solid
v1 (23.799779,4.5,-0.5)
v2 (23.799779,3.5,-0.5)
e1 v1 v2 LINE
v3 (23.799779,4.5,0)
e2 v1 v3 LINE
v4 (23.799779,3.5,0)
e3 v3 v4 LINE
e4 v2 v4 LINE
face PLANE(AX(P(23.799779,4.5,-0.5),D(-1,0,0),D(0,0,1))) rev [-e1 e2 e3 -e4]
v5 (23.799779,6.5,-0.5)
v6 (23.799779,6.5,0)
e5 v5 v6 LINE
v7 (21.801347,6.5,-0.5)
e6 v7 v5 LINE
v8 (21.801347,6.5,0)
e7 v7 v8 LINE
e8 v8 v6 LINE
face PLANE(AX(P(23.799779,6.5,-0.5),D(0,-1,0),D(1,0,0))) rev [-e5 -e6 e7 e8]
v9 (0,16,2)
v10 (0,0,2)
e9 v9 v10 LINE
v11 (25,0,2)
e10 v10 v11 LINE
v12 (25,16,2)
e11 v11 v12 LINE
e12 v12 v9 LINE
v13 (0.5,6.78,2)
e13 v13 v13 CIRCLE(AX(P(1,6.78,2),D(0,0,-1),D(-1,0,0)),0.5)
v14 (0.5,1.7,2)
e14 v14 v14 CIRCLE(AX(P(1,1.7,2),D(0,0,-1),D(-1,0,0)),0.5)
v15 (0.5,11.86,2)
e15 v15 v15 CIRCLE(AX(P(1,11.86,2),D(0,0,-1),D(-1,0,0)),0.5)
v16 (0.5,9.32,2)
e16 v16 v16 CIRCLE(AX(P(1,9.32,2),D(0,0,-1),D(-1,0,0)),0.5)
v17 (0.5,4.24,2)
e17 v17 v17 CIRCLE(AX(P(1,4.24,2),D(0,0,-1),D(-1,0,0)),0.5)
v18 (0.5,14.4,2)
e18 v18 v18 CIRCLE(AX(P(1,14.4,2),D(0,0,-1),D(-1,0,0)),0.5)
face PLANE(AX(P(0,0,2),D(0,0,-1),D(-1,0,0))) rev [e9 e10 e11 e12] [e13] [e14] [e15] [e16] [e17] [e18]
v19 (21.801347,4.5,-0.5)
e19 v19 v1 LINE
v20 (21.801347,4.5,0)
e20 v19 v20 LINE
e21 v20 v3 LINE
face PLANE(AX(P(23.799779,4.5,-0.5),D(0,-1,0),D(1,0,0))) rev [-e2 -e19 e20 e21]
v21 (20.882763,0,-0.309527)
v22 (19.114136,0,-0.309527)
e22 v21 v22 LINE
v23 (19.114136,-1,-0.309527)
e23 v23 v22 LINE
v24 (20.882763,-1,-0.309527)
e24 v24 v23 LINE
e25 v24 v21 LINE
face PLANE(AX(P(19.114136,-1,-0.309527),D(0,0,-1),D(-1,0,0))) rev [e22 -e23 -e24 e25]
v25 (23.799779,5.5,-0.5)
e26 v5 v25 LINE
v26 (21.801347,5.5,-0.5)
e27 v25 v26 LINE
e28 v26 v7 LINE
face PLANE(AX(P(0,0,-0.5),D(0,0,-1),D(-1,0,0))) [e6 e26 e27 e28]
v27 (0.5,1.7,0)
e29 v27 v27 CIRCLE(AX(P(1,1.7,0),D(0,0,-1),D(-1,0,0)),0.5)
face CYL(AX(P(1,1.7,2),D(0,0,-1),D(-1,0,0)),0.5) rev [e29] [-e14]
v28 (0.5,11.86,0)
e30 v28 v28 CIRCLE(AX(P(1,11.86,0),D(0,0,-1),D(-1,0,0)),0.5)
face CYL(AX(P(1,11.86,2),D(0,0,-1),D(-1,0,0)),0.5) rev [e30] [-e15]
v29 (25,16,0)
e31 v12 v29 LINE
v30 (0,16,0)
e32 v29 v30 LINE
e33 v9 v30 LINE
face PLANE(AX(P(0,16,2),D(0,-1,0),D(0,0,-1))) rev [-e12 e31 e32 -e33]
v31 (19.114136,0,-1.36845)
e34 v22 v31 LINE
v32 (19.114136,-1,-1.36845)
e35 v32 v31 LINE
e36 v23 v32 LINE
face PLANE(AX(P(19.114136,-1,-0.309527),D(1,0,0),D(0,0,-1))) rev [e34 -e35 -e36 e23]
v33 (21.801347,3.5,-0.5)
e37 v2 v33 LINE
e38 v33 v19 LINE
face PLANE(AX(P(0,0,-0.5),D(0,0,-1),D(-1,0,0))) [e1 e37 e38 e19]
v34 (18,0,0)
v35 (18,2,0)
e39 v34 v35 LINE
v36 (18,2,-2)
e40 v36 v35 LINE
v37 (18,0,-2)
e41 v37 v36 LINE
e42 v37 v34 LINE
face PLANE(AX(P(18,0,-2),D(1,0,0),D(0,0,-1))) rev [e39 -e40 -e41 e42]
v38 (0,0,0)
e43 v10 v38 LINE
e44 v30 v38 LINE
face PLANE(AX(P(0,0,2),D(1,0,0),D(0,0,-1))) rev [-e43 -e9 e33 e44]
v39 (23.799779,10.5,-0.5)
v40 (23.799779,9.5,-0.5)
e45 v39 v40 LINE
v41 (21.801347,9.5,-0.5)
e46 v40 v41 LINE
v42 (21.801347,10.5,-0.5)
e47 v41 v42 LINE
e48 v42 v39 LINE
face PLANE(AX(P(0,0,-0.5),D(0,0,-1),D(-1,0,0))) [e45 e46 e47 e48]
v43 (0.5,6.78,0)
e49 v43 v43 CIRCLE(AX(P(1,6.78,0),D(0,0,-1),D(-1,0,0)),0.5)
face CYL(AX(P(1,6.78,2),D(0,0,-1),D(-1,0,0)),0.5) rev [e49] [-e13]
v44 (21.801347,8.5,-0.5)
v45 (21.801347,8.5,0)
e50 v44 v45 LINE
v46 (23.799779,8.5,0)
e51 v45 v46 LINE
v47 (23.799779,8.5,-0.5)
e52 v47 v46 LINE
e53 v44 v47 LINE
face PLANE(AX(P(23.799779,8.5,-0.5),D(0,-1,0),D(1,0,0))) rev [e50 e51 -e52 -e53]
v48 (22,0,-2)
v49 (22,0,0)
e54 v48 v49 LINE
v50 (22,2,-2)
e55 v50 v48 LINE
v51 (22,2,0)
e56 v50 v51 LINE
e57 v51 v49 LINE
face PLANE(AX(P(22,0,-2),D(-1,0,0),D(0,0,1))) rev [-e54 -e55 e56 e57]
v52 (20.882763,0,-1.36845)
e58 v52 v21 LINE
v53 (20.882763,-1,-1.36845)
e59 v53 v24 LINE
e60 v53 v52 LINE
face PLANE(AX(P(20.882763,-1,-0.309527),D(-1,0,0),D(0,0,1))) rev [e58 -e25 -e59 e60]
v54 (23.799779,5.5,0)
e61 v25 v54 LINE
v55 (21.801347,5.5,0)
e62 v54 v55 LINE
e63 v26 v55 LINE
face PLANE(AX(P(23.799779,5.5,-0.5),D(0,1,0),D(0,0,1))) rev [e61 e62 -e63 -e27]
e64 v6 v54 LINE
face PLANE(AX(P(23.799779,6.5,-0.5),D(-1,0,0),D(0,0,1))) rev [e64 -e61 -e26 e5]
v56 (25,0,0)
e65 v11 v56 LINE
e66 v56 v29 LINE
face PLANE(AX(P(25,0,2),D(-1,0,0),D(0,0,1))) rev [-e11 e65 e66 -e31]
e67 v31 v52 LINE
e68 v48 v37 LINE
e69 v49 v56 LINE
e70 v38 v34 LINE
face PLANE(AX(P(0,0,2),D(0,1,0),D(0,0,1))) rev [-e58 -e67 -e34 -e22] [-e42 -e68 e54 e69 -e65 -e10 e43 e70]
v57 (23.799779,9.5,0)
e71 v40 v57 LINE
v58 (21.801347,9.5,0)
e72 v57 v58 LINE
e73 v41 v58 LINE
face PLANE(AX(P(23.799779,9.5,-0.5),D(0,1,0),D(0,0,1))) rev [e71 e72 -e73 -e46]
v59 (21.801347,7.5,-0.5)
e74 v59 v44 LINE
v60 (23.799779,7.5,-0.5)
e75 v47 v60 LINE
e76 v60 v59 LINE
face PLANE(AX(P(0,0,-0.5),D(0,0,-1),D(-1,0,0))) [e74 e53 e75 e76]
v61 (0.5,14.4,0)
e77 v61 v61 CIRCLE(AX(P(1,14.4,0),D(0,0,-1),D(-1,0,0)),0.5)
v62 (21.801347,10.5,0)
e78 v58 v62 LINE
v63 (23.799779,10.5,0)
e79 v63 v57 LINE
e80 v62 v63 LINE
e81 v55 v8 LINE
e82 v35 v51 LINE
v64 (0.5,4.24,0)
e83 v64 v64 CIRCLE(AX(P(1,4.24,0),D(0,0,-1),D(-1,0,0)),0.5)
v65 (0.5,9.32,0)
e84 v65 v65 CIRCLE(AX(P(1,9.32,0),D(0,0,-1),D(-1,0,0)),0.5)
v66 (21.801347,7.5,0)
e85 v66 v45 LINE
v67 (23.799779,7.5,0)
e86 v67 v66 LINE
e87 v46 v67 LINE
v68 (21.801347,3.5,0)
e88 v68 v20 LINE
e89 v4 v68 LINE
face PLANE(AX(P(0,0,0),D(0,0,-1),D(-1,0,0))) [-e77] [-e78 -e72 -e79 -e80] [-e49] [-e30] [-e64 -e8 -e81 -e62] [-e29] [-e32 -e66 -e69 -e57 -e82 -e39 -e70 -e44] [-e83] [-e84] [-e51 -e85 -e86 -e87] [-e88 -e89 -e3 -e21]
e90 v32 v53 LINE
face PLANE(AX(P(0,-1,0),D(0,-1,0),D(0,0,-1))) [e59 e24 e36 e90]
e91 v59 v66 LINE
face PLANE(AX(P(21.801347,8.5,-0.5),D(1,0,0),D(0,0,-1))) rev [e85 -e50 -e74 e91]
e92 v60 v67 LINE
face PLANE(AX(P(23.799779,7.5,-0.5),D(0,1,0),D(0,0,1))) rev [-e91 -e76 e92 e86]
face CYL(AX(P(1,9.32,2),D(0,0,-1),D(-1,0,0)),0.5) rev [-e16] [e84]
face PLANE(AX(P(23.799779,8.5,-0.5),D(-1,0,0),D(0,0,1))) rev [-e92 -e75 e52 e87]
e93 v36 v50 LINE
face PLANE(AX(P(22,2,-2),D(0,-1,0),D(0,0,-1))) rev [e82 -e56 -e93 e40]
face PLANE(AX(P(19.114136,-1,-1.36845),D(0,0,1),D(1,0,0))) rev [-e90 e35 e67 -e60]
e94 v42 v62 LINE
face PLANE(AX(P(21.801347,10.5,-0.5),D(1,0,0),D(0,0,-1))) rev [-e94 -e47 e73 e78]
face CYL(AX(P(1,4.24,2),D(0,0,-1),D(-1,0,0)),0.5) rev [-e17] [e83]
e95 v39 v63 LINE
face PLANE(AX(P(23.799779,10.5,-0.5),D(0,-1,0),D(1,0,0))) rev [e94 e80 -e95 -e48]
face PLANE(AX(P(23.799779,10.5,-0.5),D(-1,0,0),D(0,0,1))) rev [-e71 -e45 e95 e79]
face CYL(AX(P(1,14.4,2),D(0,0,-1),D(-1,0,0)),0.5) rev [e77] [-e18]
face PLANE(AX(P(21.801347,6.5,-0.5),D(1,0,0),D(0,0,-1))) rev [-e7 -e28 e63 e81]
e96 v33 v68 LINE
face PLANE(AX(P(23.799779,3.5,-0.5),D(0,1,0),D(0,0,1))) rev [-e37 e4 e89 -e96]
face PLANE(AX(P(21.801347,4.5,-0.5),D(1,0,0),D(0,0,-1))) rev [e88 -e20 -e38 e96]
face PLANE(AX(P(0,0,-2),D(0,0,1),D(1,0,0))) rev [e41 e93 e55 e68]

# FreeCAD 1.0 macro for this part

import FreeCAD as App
import Part
import Sketcher
from FreeCAD import Vector

doc = App.newDocument("Part")
body = doc.addObject("PartDesign::Body", "Body")

sketch1 = body.newObject("Sketcher::SketchObject", "Sketch")
sketch1.AttachmentSupport = (doc.getObject("XY_Plane"), [""])
sketch1.MapMode = "FlatFace"
sketch1.addGeometry(Part.LineSegment(Vector(0, 16, 0), Vector(0, 0, 0)), False)
sketch1.addGeometry(Part.LineSegment(Vector(0, 0, 0), Vector(25, 0, 0)), False)
sketch1.addGeometry(Part.LineSegment(Vector(25, 0, 0), Vector(25, 16, 0)), False)
sketch1.addGeometry(Part.LineSegment(Vector(25, 16, 0), Vector(0, 16, 0)), False)
sketch1.addConstraint(Sketcher.Constraint("Coincident", 0, 2, 1, 1))
sketch1.addConstraint(Sketcher.Constraint("Coincident", 1, 2, 2, 1))
sketch1.addConstraint(Sketcher.Constraint("Coincident", 2, 2, 3, 1))
sketch1.addConstraint(Sketcher.Constraint("Coincident", 3, 2, 0, 1))
sketch1.addConstraint(Sketcher.Constraint("Vertical", 0))
sketch1.addConstraint(Sketcher.Constraint("Horizontal", 1))
sketch1.addConstraint(Sketcher.Constraint("Vertical", 2))
sketch1.addConstraint(Sketcher.Constraint("Horizontal", 3))
sketch1.addConstraint(Sketcher.Constraint("Coincident", 0, 2, -1, 1))
sketch1.addConstraint(Sketcher.Constraint("DistanceX", 1, 1, 1, 2, 25.0))
sketch1.addConstraint(Sketcher.Constraint("DistanceY", 0, 2, 0, 1, 16.0))
pad1 = body.newObject("PartDesign::Pad", "Pad")
pad1.Profile = sketch1
pad1.Length = 2

sketch2 = body.newObject("Sketcher::SketchObject", "Sketch001")
sketch2.AttachmentSupport = (doc.getObject("XY_Plane"), [""])
sketch2.MapMode = "FlatFace"
sketch2.addGeometry(Part.Circle(Vector(1, 14.4, 0), Vector(0, 0, 1), 0.5), False)
sketch2.addGeometry(Part.Circle(Vector(1, 11.9, 0), Vector(0, 0, 1), 0.5), False)
sketch2.addGeometry(Part.Circle(Vector(1, 9.3, 0), Vector(0, 0, 1), 0.5), False)
sketch2.addGeometry(Part.Circle(Vector(1, 6.8, 0), Vector(0, 0, 1), 0.5), False)
sketch2.addGeometry(Part.Circle(Vector(1, 4.2, 0), Vector(0, 0, 1), 0.5), False)
sketch2.addGeometry(Part.Circle(Vector(1, 1.7, 0), Vector(0, 0, 1), 0.5), False)
sketch2.addConstraint(Sketcher.Constraint("Equal", 0, 1))
sketch2.addConstraint(Sketcher.Constraint("Equal", 1, 2))
sketch2.addConstraint(Sketcher.Constraint("Equal", 2, 3))
sketch2.addConstraint(Sketcher.Constraint("Equal", 3, 4))
sketch2.addConstraint(Sketcher.Constraint("Equal", 4, 5))
sketch2.addConstraint(Sketcher.Constraint("Vertical", 0, 3, 1, 3))
sketch2.addConstraint(Sketcher.Constraint("Vertical", 1, 3, 2, 3))
sketch2.addConstraint(Sketcher.Constraint("Vertical", 2, 3, 3, 3))
sketch2.addConstraint(Sketcher.Constraint("Vertical", 3, 3, 4, 3))
sketch2.addConstraint(Sketcher.Constraint("Vertical", 4, 3, 5, 3))
sketch2.addConstraint(Sketcher.Constraint("Diameter", 0, 1.0))
sketch2.addConstraint(Sketcher.Constraint("DistanceX", -1, 1, 0, 3, 1.0))
sketch2.addConstraint(Sketcher.Constraint("DistanceY", -1, 1, 0, 3, 14.4))
sketch2.addConstraint(Sketcher.Constraint("DistanceY", -1, 1, 5, 3, 1.7))
sketch2.addConstraint(Sketcher.Constraint("DistanceY", -1, 1, 1, 3, 11.86))
sketch2.addConstraint(Sketcher.Constraint("DistanceY", -1, 1, 2, 3, 9.32))
sketch2.addConstraint(Sketcher.Constraint("DistanceY", -1, 1, 3, 3, 6.78))
sketch2.addConstraint(Sketcher.Constraint("DistanceY", -1, 1, 4, 3, 4.24))
pocket1 = body.newObject("PartDesign::Pocket", "Pocket")
pocket1.Profile = sketch2
pocket1.Type = "ThroughAll"
pocket1.Reversed = True

sketch3 = body.newObject("Sketcher::SketchObject", "Sketch002")
sketch3.AttachmentSupport = (doc.getObject("XY_Plane"), [""])
sketch3.MapMode = "FlatFace"
sketch3.addGeometry(Part.LineSegment(Vector(23.8, 10.5, 0), Vector(23.8, 9.5, 0)), False)
sketch3.addGeometry(Part.LineSegment(Vector(23.8, 9.5, 0), Vector(21.8, 9.5, 0)), False)
sketch3.addGeometry(Part.LineSegment(Vector(21.8, 9.5, 0), Vector(21.8, 10.5, 0)), False)
sketch3.addGeometry(Part.LineSegment(Vector(21.8, 10.5, 0), Vector(23.8, 10.5, 0)), False)
sketch3.addGeometry(Part.LineSegment(Vector(23.8, 8.5, 0), Vector(23.8, 7.5, 0)), False)
sketch3.addGeometry(Part.LineSegment(Vector(23.8, 7.5, 0), Vector(21.8, 7.5, 0)), False)
sketch3.addGeometry(Part.LineSegment(Vector(21.8, 7.5, 0), Vector(21.8, 8.5, 0)), False)
sketch3.addGeometry(Part.LineSegment(Vector(21.8, 8.5, 0), Vector(23.8, 8.5, 0)), False)
sketch3.addGeometry(Part.LineSegment(Vector(23.8, 6.5, 0), Vector(23.8, 5.5, 0)), False)
sketch3.addGeometry(Part.LineSegment(Vector(23.8, 5.5, 0), Vector(21.8, 5.5, 0)), False)
sketch3.addGeometry(Part.LineSegment(Vector(21.8, 5.5, 0), Vector(21.8, 6.5, 0)), False)
sketch3.addGeometry(Part.LineSegment(Vector(21.8, 6.5, 0), Vector(23.8, 6.5, 0)), False)
sketch3.addGeometry(Part.LineSegment(Vector(23.8, 4.5, 0), Vector(23.8, 3.5, 0)), False)
sketch3.addGeometry(Part.LineSegment(Vector(23.8, 3.5, 0), Vector(21.8, 3.5, 0)), False)
sketch3.addGeometry(Part.LineSegment(Vector(21.8, 3.5, 0), Vector(21.8, 4.5, 0)), False)
sketch3.addGeometry(Part.LineSegment(Vector(21.8, 4.5, 0), Vector(23.8, 4.5, 0)), False)
sketch3.addConstraint(Sketcher.Constraint("Coincident", 0, 2, 1, 1))
sketch3.addConstraint(Sketcher.Constraint("Coincident", 1, 2, 2, 1))
sketch3.addConstraint(Sketcher.Constraint("Coincident", 2, 2, 3, 1))
sketch3.addConstraint(Sketcher.Constraint("Coincident", 3, 2, 0, 1))
sketch3.addConstraint(Sketcher.Constraint("Coincident", 4, 2, 5, 1))
sketch3.addConstraint(Sketcher.Constraint("Coincident", 5, 2, 6, 1))
sketch3.addConstraint(Sketcher.Constraint("Coincident", 6, 2, 7, 1))
sketch3.addConstraint(Sketcher.Constraint("Coincident", 7, 2, 4, 1))
sketch3.addConstraint(Sketcher.Constraint("Coincident", 8, 2, 9, 1))
sketch3.addConstraint(Sketcher.Constraint("Coincident", 9, 2, 10, 1))
sketch3.addConstraint(Sketcher.Constraint("Coincident", 10, 2, 11, 1))
sketch3.addConstraint(Sketcher.Constraint("Coincident", 11, 2, 8, 1))
sketch3.addConstraint(Sketcher.Constraint("Coincident", 12, 2, 13, 1))
sketch3.addConstraint(Sketcher.Constraint("Coincident", 13, 2, 14, 1))
sketch3.addConstraint(Sketcher.Constraint("Coincident", 14, 2, 15, 1))
sketch3.addConstraint(Sketcher.Constraint("Coincident", 15, 2, 12, 1))
sketch3.addConstraint(Sketcher.Constraint("Vertical", 0))
sketch3.addConstraint(Sketcher.Constraint("Horizontal", 1))
sketch3.addConstraint(Sketcher.Constraint("Vertical", 2))
sketch3.addConstraint(Sketcher.Constraint("Horizontal", 3))
sketch3.addConstraint(Sketcher.Constraint("Vertical", 4))
sketch3.addConstraint(Sketcher.Constraint("Horizontal", 5))
sketch3.addConstraint(Sketcher.Constraint("Vertical", 6))
sketch3.addConstraint(Sketcher.Constraint("Horizontal", 7))
sketch3.addConstraint(Sketcher.Constraint("Vertical", 8))
sketch3.addConstraint(Sketcher.Constraint("Horizontal", 9))
sketch3.addConstraint(Sketcher.Constraint("Vertical", 10))
sketch3.addConstraint(Sketcher.Constraint("Horizontal", 11))
sketch3.addConstraint(Sketcher.Constraint("Vertical", 12))
sketch3.addConstraint(Sketcher.Constraint("Horizontal", 13))
sketch3.addConstraint(Sketcher.Constraint("Vertical", 14))
sketch3.addConstraint(Sketcher.Constraint("Horizontal", 15))
sketch3.addConstraint(Sketcher.Constraint("Vertical", 3, 2, 4, 2))
sketch3.addConstraint(Sketcher.Constraint("Vertical", 2, 2, 5, 2))
sketch3.addConstraint(Sketcher.Constraint("Vertical", 7, 2, 8, 2))
sketch3.addConstraint(Sketcher.Constraint("Vertical", 6, 2, 9, 2))
sketch3.addConstraint(Sketcher.Constraint("Vertical", 11, 2, 12, 2))
sketch3.addConstraint(Sketcher.Constraint("Vertical", 10, 2, 13, 2))
sketch3.addConstraint(Sketcher.Constraint("Equal", 2, 4))
sketch3.addConstraint(Sketcher.Constraint("Equal", 6, 8))
sketch3.addConstraint(Sketcher.Constraint("Equal", 10, 12))
sketch3.addConstraint(Sketcher.Constraint("DistanceY", 0, 2, 0, 1, 1.0))
sketch3.addConstraint(Sketcher.Constraint("DistanceY", 4, 2, 0, 2, 2.0))
sketch3.addConstraint(Sketcher.Constraint("DistanceY", 8, 2, 4, 2, 2.0))
sketch3.addConstraint(Sketcher.Constraint("DistanceY", 12, 2, 8, 2, 2.0))
sketch3.addConstraint(Sketcher.Constraint("DistanceY", -1, 1, 0, 2, 9.5))
sketch3.addConstraint(Sketcher.Constraint("DistanceX", 1, 2, 1, 1, 1.998433))
sketch3.addConstraint(Sketcher.Constraint("DistanceX", -1, 1, 0, 2, 23.799779))
pad2 = body.newObject("PartDesign::Pad", "Pad001")
pad2.Profile = sketch3
pad2.Length = 0.5
pad2.Reversed = True

sketch4 = body.newObject("Sketcher::SketchObject", "Sketch003")
sketch4.AttachmentSupport = (doc.getObject("XY_Plane"), [""])
sketch4.MapMode = "FlatFace"
sketch4.addGeometry(Part.LineSegment(Vector(22, 2, 0), Vector(22, 0, 0)), False)
sketch4.addGeometry(Part.LineSegment(Vector(22, 0, 0), Vector(18, 0, 0)), False)
sketch4.addGeometry(Part.LineSegment(Vector(18, 0, 0), Vector(18, 2, 0)), False)
sketch4.addGeometry(Part.LineSegment(Vector(18, 2, 0), Vector(22, 2, 0)), False)
sketch4.addConstraint(Sketcher.Constraint("Coincident", 0, 2, 1, 1))
sketch4.addConstraint(Sketcher.Constraint("Coincident", 1, 2, 2, 1))
sketch4.addConstraint(Sketcher.Constraint("Coincident", 2, 2, 3, 1))
sketch4.addConstraint(Sketcher.Constraint("Coincident", 3, 2, 0, 1))
sketch4.addConstraint(Sketcher.Constraint("Vertical", 0))
sketch4.addConstraint(Sketcher.Constraint("Horizontal", 1))
sketch4.addConstraint(Sketcher.Constraint("Vertical", 2))
sketch4.addConstraint(Sketcher.Constraint("Horizontal", 3))
sketch4.addConstraint(Sketcher.Constraint("PointOnObject", 0, 2, -1))
sketch4.addConstraint(Sketcher.Constraint("DistanceX", 1, 2, 1, 1, 4.0))
sketch4.addConstraint(Sketcher.Constraint("DistanceY", 0, 2, 0, 1, 2.0))
sketch4.addConstraint(Sketcher.Constraint("DistanceX", -1, 1, 0, 2, 22.0))
pad3 = body.newObject("PartDesign::Pad", "Pad002")
pad3.Profile = sketch4
pad3.Length = 2
pad3.Reversed = True

sketch5 = body.newObject("Sketcher::SketchObject", "Sketch004")
sketch5.AttachmentSupport = (doc.getObject("XZ_Plane"), [""])
sketch5.MapMode = "FlatFace"
sketch5.addGeometry(Part.LineSegment(Vector(19.1, -0.3, 0), Vector(19.1, -1.4, 0)), False)
sketch5.addGeometry(Part.LineSegment(Vector(19.1, -1.4, 0), Vector(20.9, -1.4, 0)), False)
sketch5.addGeometry(Part.LineSegment(Vector(20.9, -1.4, 0), Vector(20.9, -0.3, 0)), False)
sketch5.addGeometry(Part.LineSegment(Vector(20.9, -0.3, 0), Vector(19.1, -0.3, 0)), False)
sketch5.addConstraint(Sketcher.Constraint("Coincident", 0, 2, 1, 1))
sketch5.addConstraint(Sketcher.Constraint("Coincident", 1, 2, 2, 1))
sketch5.addConstraint(Sketcher.Constraint("Coincident", 2, 2, 3, 1))
sketch5.addConstraint(Sketcher.Constraint("Coincident", 3, 2, 0, 1))
sketch5.addConstraint(Sketcher.Constraint("Vertical", 0))
sketch5.addConstraint(Sketcher.Constraint("Horizontal", 1))
sketch5.addConstraint(Sketcher.Constraint("Vertical", 2))
sketch5.addConstraint(Sketcher.Constraint("Horizontal", 3))
sketch5.addConstraint(Sketcher.Constraint("DistanceX", 1, 1, 1, 2, 1.768627))
sketch5.addConstraint(Sketcher.Constraint("DistanceY", 0, 2, 0, 1, 1.058923))
sketch5.addConstraint(Sketcher.Constraint("DistanceY", 0, 2, -1, 1, 1.36845))
sketch5.addConstraint(Sketcher.Constraint("DistanceX", -1, 1, 0, 2, 19.114136))
pad4 = body.newObject("PartDesign::Pad", "Pad003")
pad4.Profile = sketch5
pad4.Length = 1

doc.recompute()
